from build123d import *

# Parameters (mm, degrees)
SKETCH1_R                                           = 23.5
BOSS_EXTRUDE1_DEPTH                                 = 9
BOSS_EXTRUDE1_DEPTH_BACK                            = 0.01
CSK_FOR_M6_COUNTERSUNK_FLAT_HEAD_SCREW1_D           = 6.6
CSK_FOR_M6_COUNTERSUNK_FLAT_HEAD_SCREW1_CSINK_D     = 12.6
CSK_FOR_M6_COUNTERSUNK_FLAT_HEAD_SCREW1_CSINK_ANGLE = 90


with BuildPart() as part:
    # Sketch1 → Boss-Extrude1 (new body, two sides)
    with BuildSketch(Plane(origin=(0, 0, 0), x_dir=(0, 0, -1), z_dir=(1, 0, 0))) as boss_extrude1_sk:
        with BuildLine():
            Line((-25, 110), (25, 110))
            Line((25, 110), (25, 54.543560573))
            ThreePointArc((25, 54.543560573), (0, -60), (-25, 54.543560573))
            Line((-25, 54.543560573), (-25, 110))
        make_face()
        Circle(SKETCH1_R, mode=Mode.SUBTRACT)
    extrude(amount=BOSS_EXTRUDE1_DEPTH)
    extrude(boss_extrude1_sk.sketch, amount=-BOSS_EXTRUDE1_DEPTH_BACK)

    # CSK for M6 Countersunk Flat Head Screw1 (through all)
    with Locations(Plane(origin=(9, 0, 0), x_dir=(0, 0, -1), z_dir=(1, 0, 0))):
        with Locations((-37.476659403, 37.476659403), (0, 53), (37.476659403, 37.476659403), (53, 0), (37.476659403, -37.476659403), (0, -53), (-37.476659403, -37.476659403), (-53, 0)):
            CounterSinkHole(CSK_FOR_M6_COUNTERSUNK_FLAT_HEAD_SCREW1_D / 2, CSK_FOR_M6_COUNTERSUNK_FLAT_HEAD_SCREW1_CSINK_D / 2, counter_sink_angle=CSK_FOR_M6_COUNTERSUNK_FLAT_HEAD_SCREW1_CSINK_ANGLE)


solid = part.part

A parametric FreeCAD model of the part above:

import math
import FreeCAD as App
import Part
import Sketcher
from FreeCAD import Vector
Q = App.Units.Quantity

doc = App.newDocument("Part")
body = doc.addObject("PartDesign::Body", "Body")

sketch1 = body.newObject("Sketcher::SketchObject", "Sketch")
sketch1.AttachmentSupport = (doc.getObject("YZ_Plane"), [""])
sketch1.MapMode = "FlatFace"
sketch1.addGeometry([
    Part.LineSegment(Vector(110, -25, 0), Vector(110, 25, 0)),
    Part.LineSegment(Vector(110, 25, 0), Vector(55, 25, 0)),
    Part.ArcOfCircle(Part.Circle(Vector(0, 0, 0), Vector(0, 0, 1), 60), math.radians(25), math.radians(335)),
    Part.LineSegment(Vector(55, -25, 0), Vector(110, -25, 0)),
    Part.Circle(Vector(0, 0, 0), Vector(0, 0, 1), 24),
], False)
sketch1.addConstraint([
    Sketcher.Constraint("Coincident", 0, 2, 1, 1),
    Sketcher.Constraint("Coincident", 1, 2, 2, 1),
    Sketcher.Constraint("Coincident", 2, 2, 3, 1),
    Sketcher.Constraint("Coincident", 3, 2, 0, 1),
    Sketcher.Constraint("Vertical", 0),
    Sketcher.Constraint("Horizontal", 1),
    Sketcher.Constraint("Horizontal", 3),
    Sketcher.Constraint("Coincident", 2, 3, -1, 1),
    Sketcher.Constraint("Coincident", 4, 3, -1, 1),
    Sketcher.Constraint("Vertical", 1, 2, 2, 2),
    Sketcher.Constraint("Diameter", 4, Q("47 mm")),
    Sketcher.Constraint("Radius", 2, Q("60 mm")),
    Sketcher.Constraint("DistanceY", 0, 1, 0, 2, Q("50 mm")),
    Sketcher.Constraint("DistanceX", -1, 1, 0, 2, Q("110 mm")),
])
pad1 = body.newObject("PartDesign::Pad", "Pad")
pad1.Profile = sketch1
pad1.Type = "TwoLengths"
pad1.Length = 9
pad1.Length2 = 0.01

sketch2 = body.newObject("Sketcher::SketchObject", "Sketch001")
sketch2.AttachmentSupport = (doc.getObject("YZ_Plane"), [""])
sketch2.MapMode = "FlatFace"
sketch2.AttachmentOffset = App.Placement(Vector(0, 0, 9), App.Rotation())
sketch2.addGeometry([
    Part.Circle(Vector(37.5, 37.5, 0), Vector(0, 0, 1), 3.3),
    Part.Circle(Vector(53, 0, 0), Vector(0, 0, 1), 3.3),
    Part.Circle(Vector(37.5, -37.5, 0), Vector(0, 0, 1), 3.3),
    Part.Circle(Vector(0, -53, 0), Vector(0, 0, 1), 3.3),
    Part.Circle(Vector(-37.5, -37.5, 0), Vector(0, 0, 1), 3.3),
    Part.Circle(Vector(-53, 0, 0), Vector(0, 0, 1), 3.3),
    Part.Circle(Vector(-37.5, 37.5, 0), Vector(0, 0, 1), 3.3),
    Part.Circle(Vector(0, 53, 0), Vector(0, 0, 1), 3.3),
], False)
sketch2.addConstraint([
    Sketcher.Constraint("Equal", 0, 1),
    Sketcher.Constraint("Equal", 1, 2),
    Sketcher.Constraint("Equal", 2, 3),
    Sketcher.Constraint("Equal", 3, 4),
    Sketcher.Constraint("Equal", 4, 5),
    Sketcher.Constraint("Equal", 5, 6),
    Sketcher.Constraint("Equal", 6, 7),
    Sketcher.Constraint("Symmetric", 0, 3, 4, 3, -1, 1),
    Sketcher.Constraint("Symmetric", 1, 3, 5, 3, -1, 1),
    Sketcher.Constraint("Symmetric", 2, 3, 6, 3, -1, 1),
    Sketcher.Constraint("Symmetric", 3, 3, 7, 3, -1, 1),
    Sketcher.Constraint("Symmetric", 2, 3, 4, 3, -2),
    Sketcher.Constraint("PointOnObject", 1, 3, -1),
    Sketcher.Constraint("PointOnObject", 3, 3, -2),
    Sketcher.Constraint("Diameter", 0, Q("6.6 mm")),
    Sketcher.Constraint("DistanceX", -1, 1, 1, 3, Q("53 mm")),
    Sketcher.Constraint("DistanceY", 3, 3, -1, 1, Q("53 mm")),
    Sketcher.Constraint("DistanceX", -1, 1, 0, 3, Q("37.476659 mm")),
    Sketcher.Constraint("DistanceY", -1, 1, 0, 3, Q("37.476659 mm")),
])
doc.recompute()
hole = body.newObject("PartDesign::Hole", "Hole")
hole.Profile = sketch2
hole.ThreadType = "None"
hole.Diameter = 6.6
hole.DepthType = "ThroughAll"
hole.HoleCutType = "Countersink"
hole.HoleCutDiameter = 12.6
hole.HoleCutCountersinkAngle = 90

doc.recompute()
